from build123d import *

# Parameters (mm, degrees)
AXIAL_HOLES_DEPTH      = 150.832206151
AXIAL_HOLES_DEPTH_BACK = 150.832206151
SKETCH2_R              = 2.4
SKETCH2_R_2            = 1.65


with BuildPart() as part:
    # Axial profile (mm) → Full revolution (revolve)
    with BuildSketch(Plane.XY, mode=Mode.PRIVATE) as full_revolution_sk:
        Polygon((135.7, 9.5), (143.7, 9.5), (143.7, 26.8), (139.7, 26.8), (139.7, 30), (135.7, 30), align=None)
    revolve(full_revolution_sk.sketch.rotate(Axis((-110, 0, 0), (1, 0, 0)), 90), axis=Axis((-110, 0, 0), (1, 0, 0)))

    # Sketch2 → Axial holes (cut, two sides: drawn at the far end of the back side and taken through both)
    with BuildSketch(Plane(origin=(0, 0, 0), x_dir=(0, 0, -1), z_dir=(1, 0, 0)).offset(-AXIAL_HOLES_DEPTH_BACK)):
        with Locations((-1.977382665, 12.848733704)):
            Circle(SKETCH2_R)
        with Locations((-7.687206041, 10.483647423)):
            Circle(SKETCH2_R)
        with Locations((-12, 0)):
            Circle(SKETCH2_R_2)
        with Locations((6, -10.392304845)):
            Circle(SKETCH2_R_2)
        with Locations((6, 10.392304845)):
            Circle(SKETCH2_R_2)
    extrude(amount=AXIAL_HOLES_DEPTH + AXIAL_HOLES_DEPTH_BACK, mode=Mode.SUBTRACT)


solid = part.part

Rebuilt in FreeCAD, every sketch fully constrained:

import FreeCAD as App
import Part
import Sketcher

V = App.Vector

doc = App.newDocument("Part")
body = doc.addObject("PartDesign::Body", "Body")

# Sketch on XY plane
sketch1 = doc.addObject("Sketcher::SketchObject", "Sketch")
body.addObject(sketch1)
sketch1.AttachmentSupport = (doc.XY_Plane, [""])
sketch1.MapMode = "FlatFace"
sketch1.addGeometry([
    Part.LineSegment(V(135.7, 9.5, 0), V(143.7, 9.5, 0)),  # 0
    Part.LineSegment(V(143.7, 9.5, 0), V(143.7, 26.8, 0)),  # 1
    Part.LineSegment(V(143.7, 26.8, 0), V(139.7, 26.8, 0)),  # 2
    Part.LineSegment(V(139.7, 26.8, 0), V(139.7, 30, 0)),  # 3
    Part.LineSegment(V(139.7, 30, 0), V(135.7, 30, 0)),  # 4
    Part.LineSegment(V(135.7, 30, 0), V(135.7, 9.5, 0)),  # 5
], False)
sketch1.addConstraint([
    Sketcher.Constraint("Coincident", 0, 2, 1, 1),
    Sketcher.Constraint("Coincident", 1, 2, 2, 1),
    Sketcher.Constraint("Coincident", 2, 2, 3, 1),
    Sketcher.Constraint("Coincident", 3, 2, 4, 1),
    Sketcher.Constraint("Coincident", 4, 2, 5, 1),
    Sketcher.Constraint("Coincident", 5, 2, 0, 1),
    Sketcher.Constraint("Horizontal", 0),
    Sketcher.Constraint("Vertical", 1),
    Sketcher.Constraint("Horizontal", 2),
    Sketcher.Constraint("Vertical", 3),
    Sketcher.Constraint("Horizontal", 4),
    Sketcher.Constraint("Vertical", 5),
    Sketcher.Constraint("Equal", 2, 4),
    Sketcher.Constraint("DistanceX", 0, 1, 0, 2, 8.0),
    Sketcher.Constraint("DistanceY", 1, 1, 1, 2, 17.3),
    Sketcher.Constraint("DistanceY", 3, 1, 3, 2, 3.2),
    Sketcher.Constraint("DistanceY", -1, 1, 3, 2, 30.0),
    Sketcher.Constraint("DistanceX", -1, 1, 0, 2, 143.7),
])
revolution = doc.addObject("PartDesign::Revolution", "Revolution")
body.addObject(revolution)
revolution.Profile = sketch1
revolution.ReferenceAxis = (sketch1, ["H_Axis"])
revolution.Angle = 360

# Sketch on YZ plane
sketch2 = doc.addObject("Sketcher::SketchObject", "Sketch001")
body.addObject(sketch2)
sketch2.AttachmentSupport = (doc.YZ_Plane, [""])
sketch2.MapMode = "FlatFace"
sketch2.addGeometry([
    Part.Circle(V(12.8, 2, 0), V(0, 0, 1), 2.4),  # 0
    Part.Circle(V(10.5, 7.7, 0), V(0, 0, 1), 2.4),  # 1
    Part.Circle(V(0, 12, 0), V(0, 0, 1), 1.6),  # 2
    Part.Circle(V(-10.4, -6, 0), V(0, 0, 1), 1.6),  # 3
    Part.Circle(V(10.4, -6, 0), V(0, 0, 1), 1.6),  # 4
], False)
sketch2.addConstraint([
    Sketcher.Constraint("Equal", 0, 1),
    Sketcher.Constraint("Equal", 2, 3),
    Sketcher.Constraint("Equal", 3, 4),
    Sketcher.Constraint("Symmetric", 3, 3, 4, 3, -2),
    Sketcher.Constraint("PointOnObject", 2, 3, -2),
    Sketcher.Constraint("Diameter", 0, 4.8),
    Sketcher.Constraint("Diameter", 2, 3.3),
    Sketcher.Constraint("DistanceY", -1, 1, 2, 3, 12.0),
    Sketcher.Constraint("DistanceY", 3, 3, -1, 1, 6.0),
    Sketcher.Constraint("DistanceX", 3, 3, 0, 3, 23.241039),
    Sketcher.Constraint("DistanceX", 4, 3, 0, 3, 2.456429),
    Sketcher.Constraint("DistanceY", -1, 1, 0, 3, 1.977383),
    Sketcher.Constraint("DistanceX", -1, 1, 1, 3, 10.483647),
    Sketcher.Constraint("DistanceY", -1, 1, 1, 3, 7.687206),
])
pocket1 = doc.addObject("PartDesign::Pocket", "Pocket")
body.addObject(pocket1)
pocket1.Profile = sketch2
pocket1.Type = "ThroughAll"
pocket1.Midplane = True

doc.recompute()
